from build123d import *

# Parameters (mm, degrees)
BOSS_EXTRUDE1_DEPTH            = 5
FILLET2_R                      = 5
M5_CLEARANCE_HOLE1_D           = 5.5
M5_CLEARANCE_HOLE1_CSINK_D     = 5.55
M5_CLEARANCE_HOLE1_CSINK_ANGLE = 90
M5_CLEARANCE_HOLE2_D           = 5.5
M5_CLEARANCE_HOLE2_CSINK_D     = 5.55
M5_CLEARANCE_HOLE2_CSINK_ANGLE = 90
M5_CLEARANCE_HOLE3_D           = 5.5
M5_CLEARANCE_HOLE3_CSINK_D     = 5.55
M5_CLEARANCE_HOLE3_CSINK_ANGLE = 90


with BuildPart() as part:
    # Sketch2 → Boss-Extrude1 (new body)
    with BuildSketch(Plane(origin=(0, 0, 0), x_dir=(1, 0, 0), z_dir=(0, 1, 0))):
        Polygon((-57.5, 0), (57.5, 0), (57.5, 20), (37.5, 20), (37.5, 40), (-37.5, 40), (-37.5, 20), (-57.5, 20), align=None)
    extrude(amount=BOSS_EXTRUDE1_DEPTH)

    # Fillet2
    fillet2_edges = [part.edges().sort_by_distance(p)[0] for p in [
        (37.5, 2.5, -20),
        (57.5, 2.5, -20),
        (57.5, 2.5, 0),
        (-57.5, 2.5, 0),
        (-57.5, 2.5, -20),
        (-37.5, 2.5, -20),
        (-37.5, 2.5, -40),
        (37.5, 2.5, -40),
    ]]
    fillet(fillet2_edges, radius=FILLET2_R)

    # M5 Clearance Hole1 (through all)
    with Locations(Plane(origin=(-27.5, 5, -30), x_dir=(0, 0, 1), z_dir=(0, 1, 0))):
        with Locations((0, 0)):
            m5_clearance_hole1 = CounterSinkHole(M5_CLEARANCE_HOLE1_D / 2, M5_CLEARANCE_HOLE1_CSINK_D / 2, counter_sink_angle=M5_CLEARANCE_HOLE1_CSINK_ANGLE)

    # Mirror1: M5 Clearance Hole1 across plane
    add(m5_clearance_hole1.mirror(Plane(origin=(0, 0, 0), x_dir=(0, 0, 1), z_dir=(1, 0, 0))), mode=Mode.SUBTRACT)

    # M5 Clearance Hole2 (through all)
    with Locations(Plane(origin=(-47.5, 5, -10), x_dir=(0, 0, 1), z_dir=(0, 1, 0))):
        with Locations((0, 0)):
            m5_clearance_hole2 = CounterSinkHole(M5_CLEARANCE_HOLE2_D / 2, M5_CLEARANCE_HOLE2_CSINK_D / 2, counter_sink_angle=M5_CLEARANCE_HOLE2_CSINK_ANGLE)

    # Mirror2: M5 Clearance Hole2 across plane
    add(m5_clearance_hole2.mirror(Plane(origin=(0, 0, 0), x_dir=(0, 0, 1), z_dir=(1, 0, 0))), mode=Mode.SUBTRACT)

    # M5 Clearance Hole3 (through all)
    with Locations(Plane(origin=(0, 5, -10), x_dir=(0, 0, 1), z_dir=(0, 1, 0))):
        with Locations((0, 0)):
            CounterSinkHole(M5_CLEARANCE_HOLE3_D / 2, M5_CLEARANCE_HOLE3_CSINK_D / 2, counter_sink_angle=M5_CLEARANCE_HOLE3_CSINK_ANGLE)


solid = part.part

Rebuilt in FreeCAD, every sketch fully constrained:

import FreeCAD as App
import Part
import Sketcher


def edges_at(feature, points):
    """Names of the edges that pass closest to the given points."""
    edges = feature.Shape.Edges
    near = lambda p: min(range(len(edges)), key=lambda i: edges[i].distToShape(Part.Vertex(*p))[0])
    return sorted({f"Edge{near(p) + 1}" for p in points})


def add_polygon(sketch, points):
    """Adds a closed chain of lines whose ends are joined by coincident constraints."""
    first, n = sketch.GeometryCount, len(points)
    for a, b in zip(points, points[1:] + points[:1]):
        sketch.addGeometry(Part.LineSegment(App.Vector(*a, 0), App.Vector(*b, 0)), False)
    for i in range(n):
        sketch.addConstraint(Sketcher.Constraint("Coincident", first + i, 2, first + (i + 1) % n, 1))

doc = App.newDocument("Part")
body = doc.addObject("PartDesign::Body", "Body")

# Sketch on XZ plane
sketch1 = body.newObject("Sketcher::SketchObject", "Sketch")
sketch1.AttachmentSupport = (doc.getObject("XZ_Plane"), [""])
sketch1.MapMode = "FlatFace"
add_polygon(sketch1, [(-58, 0), (58, 0), (58, -20), (38, -20), (38, -40), (-38, -40), (-38, -20), (-58, -20)])  # lines 0-7
sketch1.addConstraint(Sketcher.Constraint("Horizontal", 0))
sketch1.addConstraint(Sketcher.Constraint("Vertical", 1))
sketch1.addConstraint(Sketcher.Constraint("Horizontal", 2))
sketch1.addConstraint(Sketcher.Constraint("Vertical", 3))
sketch1.addConstraint(Sketcher.Constraint("Horizontal", 4))
sketch1.addConstraint(Sketcher.Constraint("Vertical", 5))
sketch1.addConstraint(Sketcher.Constraint("Horizontal", 6))
sketch1.addConstraint(Sketcher.Constraint("Vertical", 7))
sketch1.addConstraint(Sketcher.Constraint("Symmetric", 0, 2, 7, 2, -1, 1))
sketch1.addConstraint(Sketcher.Constraint("Symmetric", 2, 2, 5, 2, -2))
sketch1.addConstraint(Sketcher.Constraint("Equal", 6, 1))
sketch1.addConstraint(Sketcher.Constraint("Equal", 1, 3))
sketch1.addConstraint(Sketcher.Constraint("DistanceX", 0, 1, 0, 2, 115.0))
sketch1.addConstraint(Sketcher.Constraint("DistanceX", 2, 2, 2, 1, 20.0))
pad1 = body.newObject("PartDesign::Pad", "Pad")
pad1.Profile = sketch1
pad1.Length = 5
pad1.Reversed = True
doc.recompute()

fillet = body.newObject("PartDesign::Fillet", "Fillet")
fillet.Base = (pad1, edges_at(pad1, [
    (37.5, 2.5, -20),
    (57.5, 2.5, -20),
    (57.5, 2.5, 0),
    (-57.5, 2.5, 0),
    (-57.5, 2.5, -20),
    (-37.5, 2.5, -20),
    (-37.5, 2.5, -40),
    (37.5, 2.5, -40),
]))
fillet.Radius = 5

# Sketch on XZ plane
sketch2 = body.newObject("Sketcher::SketchObject", "Sketch001")
sketch2.AttachmentSupport = (doc.getObject("XZ_Plane"), [""])
sketch2.MapMode = "FlatFace"
sketch2.AttachmentOffset = App.Placement(App.Vector(0, 0, -5), App.Rotation())
sketch2.addGeometry(Part.Circle(App.Vector(-27.5, -30, 0), App.Vector(0, 0, 1), 2.8), False)
sketch2.addConstraint(Sketcher.Constraint("Diameter", 0, 5.5))
sketch2.addConstraint(Sketcher.Constraint("DistanceY", 0, 3, -1, 1, 30.0))
sketch2.addConstraint(Sketcher.Constraint("DistanceX", 0, 3, -1, 1, 27.5))
doc.recompute()
hole = body.newObject("PartDesign::Hole", "Hole")
hole.Profile = sketch2
hole.ThreadType = "None"
hole.Diameter = 5.5
hole.DepthType = "ThroughAll"
hole.HoleCutType = "Countersink"
hole.HoleCutDiameter = 5.55
hole.HoleCutCountersinkAngle = 90
hole.Reversed = True
doc.recompute()

mirrored = body.newObject("PartDesign::Mirrored", "Mirrored")
mirrored.Originals = [hole]
mirrored.MirrorPlane = (doc.getObject("YZ_Plane"), [""])
body.Tip = mirrored

# Sketch on XZ plane
sketch3 = body.newObject("Sketcher::SketchObject", "Sketch002")
sketch3.AttachmentSupport = (doc.getObject("XZ_Plane"), [""])
sketch3.MapMode = "FlatFace"
sketch3.AttachmentOffset = App.Placement(App.Vector(0, 0, -5), App.Rotation())
sketch3.addGeometry(Part.Circle(App.Vector(-47.5, -10, 0), App.Vector(0, 0, 1), 2.8), False)
sketch3.addConstraint(Sketcher.Constraint("Diameter", 0, 5.5))
sketch3.addConstraint(Sketcher.Constraint("DistanceY", 0, 3, -1, 1, 10.0))
sketch3.addConstraint(Sketcher.Constraint("DistanceX", 0, 3, -1, 1, 47.5))
doc.recompute()
hole2 = body.newObject("PartDesign::Hole", "Hole001")
hole2.Profile = sketch3
hole2.ThreadType = "None"
hole2.Diameter = 5.5
hole2.DepthType = "ThroughAll"
hole2.HoleCutType = "Countersink"
hole2.HoleCutDiameter = 5.55
hole2.HoleCutCountersinkAngle = 90
hole2.Reversed = True
doc.recompute()

mirrored2 = body.newObject("PartDesign::Mirrored", "Mirrored001")
mirrored2.Originals = [hole2]
mirrored2.MirrorPlane = (doc.getObject("YZ_Plane"), [""])
body.Tip = mirrored2

# Sketch on XZ plane
sketch4 = body.newObject("Sketcher::SketchObject", "Sketch003")
sketch4.AttachmentSupport = (doc.getObject("XZ_Plane"), [""])
sketch4.MapMode = "FlatFace"
sketch4.AttachmentOffset = App.Placement(App.Vector(0, 0, -5), App.Rotation())
sketch4.addGeometry(Part.Circle(App.Vector(0, -10, 0), App.Vector(0, 0, 1), 2.8), False)
sketch4.addConstraint(Sketcher.Constraint("PointOnObject", 0, 3, -2))
sketch4.addConstraint(Sketcher.Constraint("Diameter", 0, 5.5))
sketch4.addConstraint(Sketcher.Constraint("DistanceY", 0, 3, -1, 1, 10.0))
doc.recompute()
hole3 = body.newObject("PartDesign::Hole", "Hole002")
hole3.Profile = sketch4
hole3.ThreadType = "None"
hole3.Diameter = 5.5
hole3.DepthType = "ThroughAll"
hole3.HoleCutType = "Countersink"
hole3.HoleCutDiameter = 5.55
hole3.HoleCutCountersinkAngle = 90
hole3.Reversed = True

doc.recompute()
